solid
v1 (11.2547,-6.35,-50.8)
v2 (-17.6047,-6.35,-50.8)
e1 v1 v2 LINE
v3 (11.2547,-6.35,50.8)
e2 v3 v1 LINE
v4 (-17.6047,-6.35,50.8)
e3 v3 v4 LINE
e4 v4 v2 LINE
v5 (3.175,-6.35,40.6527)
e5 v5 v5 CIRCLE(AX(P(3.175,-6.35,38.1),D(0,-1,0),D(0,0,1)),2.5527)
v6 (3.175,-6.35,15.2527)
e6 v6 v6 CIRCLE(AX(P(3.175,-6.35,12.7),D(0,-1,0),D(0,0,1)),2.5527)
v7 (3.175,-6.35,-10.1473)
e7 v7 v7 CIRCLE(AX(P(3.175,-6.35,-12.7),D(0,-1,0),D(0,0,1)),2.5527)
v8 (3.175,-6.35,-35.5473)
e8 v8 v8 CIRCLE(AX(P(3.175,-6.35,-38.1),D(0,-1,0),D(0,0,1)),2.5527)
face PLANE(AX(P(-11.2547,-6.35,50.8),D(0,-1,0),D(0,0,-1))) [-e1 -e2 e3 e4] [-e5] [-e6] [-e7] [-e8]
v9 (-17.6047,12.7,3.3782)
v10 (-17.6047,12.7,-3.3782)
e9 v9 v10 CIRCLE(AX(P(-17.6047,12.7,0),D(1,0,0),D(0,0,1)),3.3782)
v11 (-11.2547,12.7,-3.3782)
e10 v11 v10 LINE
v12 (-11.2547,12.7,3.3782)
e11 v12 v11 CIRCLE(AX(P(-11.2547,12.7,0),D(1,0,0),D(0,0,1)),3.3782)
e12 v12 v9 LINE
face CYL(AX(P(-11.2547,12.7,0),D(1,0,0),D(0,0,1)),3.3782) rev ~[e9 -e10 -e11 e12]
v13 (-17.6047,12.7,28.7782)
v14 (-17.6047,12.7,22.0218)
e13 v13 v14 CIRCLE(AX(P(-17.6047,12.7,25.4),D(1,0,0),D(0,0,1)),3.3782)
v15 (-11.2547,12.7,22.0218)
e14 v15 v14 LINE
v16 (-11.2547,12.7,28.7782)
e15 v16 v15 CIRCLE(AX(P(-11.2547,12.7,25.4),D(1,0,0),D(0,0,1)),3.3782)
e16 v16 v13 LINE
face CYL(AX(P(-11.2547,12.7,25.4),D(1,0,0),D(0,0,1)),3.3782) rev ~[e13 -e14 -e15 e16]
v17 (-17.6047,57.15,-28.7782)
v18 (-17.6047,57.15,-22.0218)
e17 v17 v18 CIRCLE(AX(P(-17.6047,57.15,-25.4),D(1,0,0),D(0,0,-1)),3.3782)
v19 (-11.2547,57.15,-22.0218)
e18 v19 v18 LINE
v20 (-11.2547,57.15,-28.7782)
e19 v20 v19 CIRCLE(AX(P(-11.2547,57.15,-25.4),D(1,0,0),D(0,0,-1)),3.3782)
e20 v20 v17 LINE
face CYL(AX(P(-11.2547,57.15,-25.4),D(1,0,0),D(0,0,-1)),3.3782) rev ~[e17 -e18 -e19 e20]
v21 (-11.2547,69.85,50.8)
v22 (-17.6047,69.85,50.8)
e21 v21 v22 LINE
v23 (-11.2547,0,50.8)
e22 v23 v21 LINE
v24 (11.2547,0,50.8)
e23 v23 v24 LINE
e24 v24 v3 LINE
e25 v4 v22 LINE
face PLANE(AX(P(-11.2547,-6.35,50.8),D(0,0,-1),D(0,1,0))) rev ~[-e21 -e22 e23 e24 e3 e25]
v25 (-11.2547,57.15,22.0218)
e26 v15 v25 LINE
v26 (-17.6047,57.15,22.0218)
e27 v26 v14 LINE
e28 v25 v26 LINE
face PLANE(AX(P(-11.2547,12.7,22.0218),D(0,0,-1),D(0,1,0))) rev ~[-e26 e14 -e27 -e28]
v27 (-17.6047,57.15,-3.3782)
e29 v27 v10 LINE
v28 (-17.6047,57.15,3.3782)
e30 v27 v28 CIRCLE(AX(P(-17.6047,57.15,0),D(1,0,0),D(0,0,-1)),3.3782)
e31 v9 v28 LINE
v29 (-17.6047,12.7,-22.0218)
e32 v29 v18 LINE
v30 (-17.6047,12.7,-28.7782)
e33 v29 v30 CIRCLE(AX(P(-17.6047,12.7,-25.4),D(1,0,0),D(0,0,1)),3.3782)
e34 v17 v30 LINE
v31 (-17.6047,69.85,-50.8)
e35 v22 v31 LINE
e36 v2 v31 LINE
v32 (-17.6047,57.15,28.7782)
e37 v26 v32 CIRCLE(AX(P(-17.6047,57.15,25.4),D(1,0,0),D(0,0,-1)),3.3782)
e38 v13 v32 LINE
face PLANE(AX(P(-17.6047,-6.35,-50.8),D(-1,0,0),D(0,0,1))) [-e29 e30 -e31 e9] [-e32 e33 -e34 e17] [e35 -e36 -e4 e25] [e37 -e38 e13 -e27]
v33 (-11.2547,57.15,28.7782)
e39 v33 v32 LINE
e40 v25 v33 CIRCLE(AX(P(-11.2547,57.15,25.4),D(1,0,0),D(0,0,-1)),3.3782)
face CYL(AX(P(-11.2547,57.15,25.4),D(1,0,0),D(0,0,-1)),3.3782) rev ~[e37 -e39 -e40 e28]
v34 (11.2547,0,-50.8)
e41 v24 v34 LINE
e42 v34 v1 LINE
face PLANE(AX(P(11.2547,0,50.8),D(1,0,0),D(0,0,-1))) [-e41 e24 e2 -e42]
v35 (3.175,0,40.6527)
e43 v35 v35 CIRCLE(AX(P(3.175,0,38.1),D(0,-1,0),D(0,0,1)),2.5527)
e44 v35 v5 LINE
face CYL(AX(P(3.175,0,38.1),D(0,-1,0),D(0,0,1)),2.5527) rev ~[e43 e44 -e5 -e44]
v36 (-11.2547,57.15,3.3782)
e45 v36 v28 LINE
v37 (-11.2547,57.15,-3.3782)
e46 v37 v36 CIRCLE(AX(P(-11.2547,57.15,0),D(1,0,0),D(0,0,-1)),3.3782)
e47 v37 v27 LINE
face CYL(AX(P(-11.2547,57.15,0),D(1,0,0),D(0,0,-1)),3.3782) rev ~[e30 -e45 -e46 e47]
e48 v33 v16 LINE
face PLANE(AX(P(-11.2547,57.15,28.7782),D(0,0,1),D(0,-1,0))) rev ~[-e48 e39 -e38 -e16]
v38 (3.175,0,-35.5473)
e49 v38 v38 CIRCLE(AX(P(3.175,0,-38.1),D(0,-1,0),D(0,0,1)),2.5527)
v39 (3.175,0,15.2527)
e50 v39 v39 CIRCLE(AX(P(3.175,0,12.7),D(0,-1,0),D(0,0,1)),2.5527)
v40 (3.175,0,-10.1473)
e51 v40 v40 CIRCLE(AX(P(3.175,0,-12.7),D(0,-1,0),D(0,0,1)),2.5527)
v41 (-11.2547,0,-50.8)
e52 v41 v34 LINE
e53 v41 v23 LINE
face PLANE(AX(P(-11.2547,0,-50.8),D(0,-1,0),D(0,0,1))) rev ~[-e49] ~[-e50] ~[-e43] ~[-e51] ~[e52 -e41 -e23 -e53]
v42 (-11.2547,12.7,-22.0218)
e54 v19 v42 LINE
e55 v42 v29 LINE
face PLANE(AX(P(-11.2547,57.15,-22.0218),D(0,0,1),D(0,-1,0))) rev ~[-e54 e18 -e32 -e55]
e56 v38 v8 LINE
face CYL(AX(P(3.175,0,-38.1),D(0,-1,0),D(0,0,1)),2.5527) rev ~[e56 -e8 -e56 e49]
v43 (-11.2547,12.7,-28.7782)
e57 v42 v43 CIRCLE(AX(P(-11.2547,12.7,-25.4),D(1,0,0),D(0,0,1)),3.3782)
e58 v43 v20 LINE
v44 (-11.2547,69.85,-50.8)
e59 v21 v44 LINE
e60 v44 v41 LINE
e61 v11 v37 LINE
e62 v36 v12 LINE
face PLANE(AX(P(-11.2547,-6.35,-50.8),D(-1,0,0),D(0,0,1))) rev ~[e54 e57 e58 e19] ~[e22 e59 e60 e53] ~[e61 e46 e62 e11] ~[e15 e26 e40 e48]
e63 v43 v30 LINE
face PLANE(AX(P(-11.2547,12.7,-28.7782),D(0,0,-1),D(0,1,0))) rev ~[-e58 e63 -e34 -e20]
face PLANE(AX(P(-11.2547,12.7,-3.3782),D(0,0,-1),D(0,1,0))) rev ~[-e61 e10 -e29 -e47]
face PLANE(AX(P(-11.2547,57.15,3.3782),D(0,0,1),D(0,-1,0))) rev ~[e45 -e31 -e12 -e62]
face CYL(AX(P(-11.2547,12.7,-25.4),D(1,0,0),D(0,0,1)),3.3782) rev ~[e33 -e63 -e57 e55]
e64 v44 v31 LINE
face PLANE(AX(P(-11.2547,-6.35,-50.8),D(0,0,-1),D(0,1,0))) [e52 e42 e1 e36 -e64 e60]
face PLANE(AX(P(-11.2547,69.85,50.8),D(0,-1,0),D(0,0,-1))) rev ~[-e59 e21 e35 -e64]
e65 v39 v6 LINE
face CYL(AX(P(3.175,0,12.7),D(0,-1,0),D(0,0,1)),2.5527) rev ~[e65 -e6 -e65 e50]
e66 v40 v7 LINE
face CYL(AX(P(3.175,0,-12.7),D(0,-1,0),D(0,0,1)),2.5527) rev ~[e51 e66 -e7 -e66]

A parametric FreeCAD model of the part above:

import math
import FreeCAD as App
import Part
import Sketcher
from FreeCAD import Vector
Q = App.Units.Quantity


def add_polygon(sketch, points):
    """Adds a closed chain of lines whose ends are joined by coincident constraints."""
    first, n = sketch.GeometryCount, len(points)
    for a, b in zip(points, points[1:] + points[:1]):
        sketch.addGeometry(Part.LineSegment(App.Vector(*a, 0), App.Vector(*b, 0)), False)
    for i in range(n):
        sketch.addConstraint(Sketcher.Constraint("Coincident", first + i, 2, first + (i + 1) % n, 1))

doc = App.newDocument("Part")
body = doc.addObject("PartDesign::Body", "Body")

sketch1 = body.newObject("Sketcher::SketchObject", "Sketch")
sketch1.AttachmentSupport = (doc.getObject("XZ_Plane"), [""])
sketch1.MapMode = "FlatFace"
add_polygon(sketch1, [(-11, -51), (-11, 51), (11, 51), (11, -51)])
sketch1.addConstraint([
    Sketcher.Constraint("Vertical", 0),
    Sketcher.Constraint("Horizontal", 1),
    Sketcher.Constraint("Vertical", 2),
    Sketcher.Constraint("Horizontal", 3),
    Sketcher.Constraint("Symmetric", 0, 2, 2, 2, -1, 1),
    Sketcher.Constraint("DistanceY", 0, 1, 0, 2, Q("4 in")),
    Sketcher.Constraint("DistanceX", 1, 1, 1, 2, Q("0.8862 in")),
])
pad1 = body.newObject("PartDesign::Pad", "Pad")
pad1.Profile = sketch1
pad1.Length = Q("0.25 in")

sketch2 = body.newObject("Sketcher::SketchObject", "Sketch001")
sketch2.AttachmentSupport = (doc.getObject("XZ_Plane"), [""])
sketch2.MapMode = "FlatFace"
add_polygon(sketch2, [(-11, 51), (-5, 51), (-5, -51), (-11, -51)])
sketch2.addConstraint([
    Sketcher.Constraint("Horizontal", 0),
    Sketcher.Constraint("Vertical", 1),
    Sketcher.Constraint("Horizontal", 2),
    Sketcher.Constraint("Vertical", 3),
    Sketcher.Constraint("DistanceX", 0, 1, 0, 2, Q("0.25 in")),
    Sketcher.Constraint("DistanceY", 1, 2, 1, 1, Q("4 in")),
    Sketcher.Constraint("DistanceY", -1, 1, 0, 2, Q("2 in")),
    Sketcher.Constraint("DistanceX", 0, 2, -1, 1, Q("0.1931 in")),
])
pad2 = body.newObject("PartDesign::Pad", "Pad001")
pad2.Profile = sketch2
pad2.Length = Q("3 in")
pad2.Reversed = True

sketch3 = body.newObject("Sketcher::SketchObject", "Sketch002")
sketch3.AttachmentSupport = (doc.getObject("XZ_Plane"), [""])
sketch3.MapMode = "FlatFace"
sketch3.addGeometry([
    Part.Circle(Vector(3.2, 38.1, 0), Vector(0, 0, 1), 2.6),
    Part.Circle(Vector(3.2, 12.7, 0), Vector(0, 0, 1), 2.6),
    Part.Circle(Vector(3.2, -12.7, 0), Vector(0, 0, 1), 2.6),
    Part.Circle(Vector(3.2, -38.1, 0), Vector(0, 0, 1), 2.6),
], False)
sketch3.addConstraint([
    Sketcher.Constraint("Equal", 0, 1),
    Sketcher.Constraint("Equal", 1, 2),
    Sketcher.Constraint("Equal", 2, 3),
    Sketcher.Constraint("Symmetric", 1, 3, 2, 3, -1),
    Sketcher.Constraint("Symmetric", 0, 3, 3, 3, -1),
    Sketcher.Constraint("Vertical", 0, 3, 1, 3),
    Sketcher.Constraint("Diameter", 0, Q("0.201 in")),
    Sketcher.Constraint("DistanceY", 1, 3, 0, 3, Q("1 in")),
    Sketcher.Constraint("DistanceY", 2, 3, 1, 3, Q("1 in")),
    Sketcher.Constraint("DistanceX", -1, 1, 0, 3, Q("0.125 in")),
])
doc.recompute()
hole = body.newObject("PartDesign::Hole", "Hole")
hole.Profile = sketch3
hole.ThreadType = "None"
hole.Diameter = Q("0.201 in")
hole.DepthType = "ThroughAll"
hole.Reversed = True

sketch4 = body.newObject("Sketcher::SketchObject", "Sketch003")
sketch4.AttachmentSupport = (doc.getObject("YZ_Plane"), [""])
sketch4.MapMode = "FlatFace"
sketch4.AttachmentOffset = App.Placement(Vector(0, 0, -0.4430984 * 25.4), App.Rotation())
add_polygon(sketch4, [(76, -51), (0, -51), (0, 51), (76, 51)])
sketch4.addConstraint([
    Sketcher.Constraint("Horizontal", 0),
    Sketcher.Constraint("Vertical", 1),
    Sketcher.Constraint("Horizontal", 2),
    Sketcher.Constraint("Vertical", 3),
    Sketcher.Constraint("Symmetric", 0, 2, 1, 2, -1, 1),
    Sketcher.Constraint("DistanceX", 0, 2, 0, 1, Q("3 in")),
    Sketcher.Constraint("DistanceY", 1, 1, 1, 2, Q("4 in")),
])
pocket1 = body.newObject("PartDesign::Pocket", "Pocket")
pocket1.Profile = sketch4
pocket1.Type = "ThroughAll"
pocket1.Reversed = True

sketch5 = body.newObject("Sketcher::SketchObject", "Sketch004")
sketch5.AttachmentSupport = (doc.getObject("YZ_Plane"), [""])
sketch5.MapMode = "FlatFace"
sketch5.AttachmentOffset = App.Placement(Vector(0, 0, -0.4430984 * 25.4), App.Rotation())
add_polygon(sketch5, [(70, -51), (-6, -51), (-6, 51), (70, 51)])
sketch5.addConstraint([
    Sketcher.Constraint("Horizontal", 0),
    Sketcher.Constraint("Vertical", 1),
    Sketcher.Constraint("Horizontal", 2),
    Sketcher.Constraint("Vertical", 3),
    Sketcher.Constraint("DistanceX", 0, 2, 0, 1, Q("3 in")),
    Sketcher.Constraint("DistanceY", 1, 1, 1, 2, Q("4 in")),
    Sketcher.Constraint("DistanceY", 0, 2, -1, 1, Q("2 in")),
    Sketcher.Constraint("DistanceX", 0, 2, -1, 1, Q("0.25 in")),
])
pad3 = body.newObject("PartDesign::Pad", "Pad002")
pad3.Profile = sketch5
pad3.Length = Q("0.25 in")
pad3.Reversed = True

sketch6 = body.newObject("Sketcher::SketchObject", "Sketch005")
sketch6.AttachmentSupport = (doc.getObject("YZ_Plane"), [""])
sketch6.MapMode = "FlatFace"
sketch6.AttachmentOffset = App.Placement(Vector(0, 0, -0.4430984 * 25.4), App.Rotation())
sketch6.addGeometry([
    Part.ArcOfCircle(Part.Circle(Vector(57.1, 25.4, 0), Vector(0, 0, 1), 3.4), math.radians(-90), math.radians(90)),
    Part.LineSegment(Vector(57.1, 28.8, 0), Vector(12.7, 28.8, 0)),
    Part.ArcOfCircle(Part.Circle(Vector(12.7, 25.4, 0), Vector(0, 0, 1), 3.4), math.radians(90), math.radians(270)),
    Part.LineSegment(Vector(12.7, 22, 0), Vector(57.1, 22, 0)),
    Part.ArcOfCircle(Part.Circle(Vector(57.1, 0, 0), Vector(0, 0, 1), 3.4), math.radians(-90), math.radians(90)),
    Part.LineSegment(Vector(57.1, 3.4, 0), Vector(12.7, 3.4, 0)),
    Part.ArcOfCircle(Part.Circle(Vector(12.7, 0, 0), Vector(0, 0, 1), 3.4), math.radians(90), math.radians(270)),
    Part.LineSegment(Vector(12.7, -3.4, 0), Vector(57.1, -3.4, 0)),
    Part.ArcOfCircle(Part.Circle(Vector(57.1, -25.4, 0), Vector(0, 0, 1), 3.4), math.radians(-90), math.radians(90)),
    Part.LineSegment(Vector(57.1, -22, 0), Vector(12.7, -22, 0)),
    Part.ArcOfCircle(Part.Circle(Vector(12.7, -25.4, 0), Vector(0, 0, 1), 3.4), math.radians(90), math.radians(270)),
    Part.LineSegment(Vector(12.7, -28.8, 0), Vector(57.1, -28.8, 0)),
], False)
sketch6.addConstraint([
    Sketcher.Constraint("Tangent", 0, 2, 1, 1),
    Sketcher.Constraint("Tangent", 1, 2, 2, 1),
    Sketcher.Constraint("Tangent", 2, 2, 3, 1),
    Sketcher.Constraint("Tangent", 3, 2, 0, 1),
    Sketcher.Constraint("Tangent", 4, 2, 5, 1),
    Sketcher.Constraint("Tangent", 5, 2, 6, 1),
    Sketcher.Constraint("Tangent", 6, 2, 7, 1),
    Sketcher.Constraint("Tangent", 7, 2, 4, 1),
    Sketcher.Constraint("Tangent", 8, 2, 9, 1),
    Sketcher.Constraint("Tangent", 9, 2, 10, 1),
    Sketcher.Constraint("Tangent", 10, 2, 11, 1),
    Sketcher.Constraint("Tangent", 11, 2, 8, 1),
    Sketcher.Constraint("Horizontal", 1),
    Sketcher.Constraint("Horizontal", 3),
    Sketcher.Constraint("Horizontal", 5),
    Sketcher.Constraint("Horizontal", 7),
    Sketcher.Constraint("Horizontal", 9),
    Sketcher.Constraint("Horizontal", 11),
    Sketcher.Constraint("Equal", 2, 4),
    Sketcher.Constraint("Equal", 6, 8),
    Sketcher.Constraint("Symmetric", 0, 3, 8, 3, -1),
    Sketcher.Constraint("PointOnObject", 4, 3, -1),
    Sketcher.Constraint("Vertical", 0, 3, 4, 3),
    Sketcher.Constraint("Vertical", 2, 3, 6, 3),
    Sketcher.Constraint("Vertical", 6, 3, 10, 3),
    Sketcher.Constraint("DistanceY", -1, 1, 0, 3, Q("1 in")),
    Sketcher.Constraint("Radius", 0, Q("0.133 in")),
    Sketcher.Constraint("DistanceX", -1, 1, 2, 3, Q("0.5 in")),
    Sketcher.Constraint("DistanceX", 1, 2, 1, 1, Q("1.75 in")),
])
pocket2 = body.newObject("PartDesign::Pocket", "Pocket001")
pocket2.Profile = sketch6
pocket2.Type = "ThroughAll"

doc.recompute()
